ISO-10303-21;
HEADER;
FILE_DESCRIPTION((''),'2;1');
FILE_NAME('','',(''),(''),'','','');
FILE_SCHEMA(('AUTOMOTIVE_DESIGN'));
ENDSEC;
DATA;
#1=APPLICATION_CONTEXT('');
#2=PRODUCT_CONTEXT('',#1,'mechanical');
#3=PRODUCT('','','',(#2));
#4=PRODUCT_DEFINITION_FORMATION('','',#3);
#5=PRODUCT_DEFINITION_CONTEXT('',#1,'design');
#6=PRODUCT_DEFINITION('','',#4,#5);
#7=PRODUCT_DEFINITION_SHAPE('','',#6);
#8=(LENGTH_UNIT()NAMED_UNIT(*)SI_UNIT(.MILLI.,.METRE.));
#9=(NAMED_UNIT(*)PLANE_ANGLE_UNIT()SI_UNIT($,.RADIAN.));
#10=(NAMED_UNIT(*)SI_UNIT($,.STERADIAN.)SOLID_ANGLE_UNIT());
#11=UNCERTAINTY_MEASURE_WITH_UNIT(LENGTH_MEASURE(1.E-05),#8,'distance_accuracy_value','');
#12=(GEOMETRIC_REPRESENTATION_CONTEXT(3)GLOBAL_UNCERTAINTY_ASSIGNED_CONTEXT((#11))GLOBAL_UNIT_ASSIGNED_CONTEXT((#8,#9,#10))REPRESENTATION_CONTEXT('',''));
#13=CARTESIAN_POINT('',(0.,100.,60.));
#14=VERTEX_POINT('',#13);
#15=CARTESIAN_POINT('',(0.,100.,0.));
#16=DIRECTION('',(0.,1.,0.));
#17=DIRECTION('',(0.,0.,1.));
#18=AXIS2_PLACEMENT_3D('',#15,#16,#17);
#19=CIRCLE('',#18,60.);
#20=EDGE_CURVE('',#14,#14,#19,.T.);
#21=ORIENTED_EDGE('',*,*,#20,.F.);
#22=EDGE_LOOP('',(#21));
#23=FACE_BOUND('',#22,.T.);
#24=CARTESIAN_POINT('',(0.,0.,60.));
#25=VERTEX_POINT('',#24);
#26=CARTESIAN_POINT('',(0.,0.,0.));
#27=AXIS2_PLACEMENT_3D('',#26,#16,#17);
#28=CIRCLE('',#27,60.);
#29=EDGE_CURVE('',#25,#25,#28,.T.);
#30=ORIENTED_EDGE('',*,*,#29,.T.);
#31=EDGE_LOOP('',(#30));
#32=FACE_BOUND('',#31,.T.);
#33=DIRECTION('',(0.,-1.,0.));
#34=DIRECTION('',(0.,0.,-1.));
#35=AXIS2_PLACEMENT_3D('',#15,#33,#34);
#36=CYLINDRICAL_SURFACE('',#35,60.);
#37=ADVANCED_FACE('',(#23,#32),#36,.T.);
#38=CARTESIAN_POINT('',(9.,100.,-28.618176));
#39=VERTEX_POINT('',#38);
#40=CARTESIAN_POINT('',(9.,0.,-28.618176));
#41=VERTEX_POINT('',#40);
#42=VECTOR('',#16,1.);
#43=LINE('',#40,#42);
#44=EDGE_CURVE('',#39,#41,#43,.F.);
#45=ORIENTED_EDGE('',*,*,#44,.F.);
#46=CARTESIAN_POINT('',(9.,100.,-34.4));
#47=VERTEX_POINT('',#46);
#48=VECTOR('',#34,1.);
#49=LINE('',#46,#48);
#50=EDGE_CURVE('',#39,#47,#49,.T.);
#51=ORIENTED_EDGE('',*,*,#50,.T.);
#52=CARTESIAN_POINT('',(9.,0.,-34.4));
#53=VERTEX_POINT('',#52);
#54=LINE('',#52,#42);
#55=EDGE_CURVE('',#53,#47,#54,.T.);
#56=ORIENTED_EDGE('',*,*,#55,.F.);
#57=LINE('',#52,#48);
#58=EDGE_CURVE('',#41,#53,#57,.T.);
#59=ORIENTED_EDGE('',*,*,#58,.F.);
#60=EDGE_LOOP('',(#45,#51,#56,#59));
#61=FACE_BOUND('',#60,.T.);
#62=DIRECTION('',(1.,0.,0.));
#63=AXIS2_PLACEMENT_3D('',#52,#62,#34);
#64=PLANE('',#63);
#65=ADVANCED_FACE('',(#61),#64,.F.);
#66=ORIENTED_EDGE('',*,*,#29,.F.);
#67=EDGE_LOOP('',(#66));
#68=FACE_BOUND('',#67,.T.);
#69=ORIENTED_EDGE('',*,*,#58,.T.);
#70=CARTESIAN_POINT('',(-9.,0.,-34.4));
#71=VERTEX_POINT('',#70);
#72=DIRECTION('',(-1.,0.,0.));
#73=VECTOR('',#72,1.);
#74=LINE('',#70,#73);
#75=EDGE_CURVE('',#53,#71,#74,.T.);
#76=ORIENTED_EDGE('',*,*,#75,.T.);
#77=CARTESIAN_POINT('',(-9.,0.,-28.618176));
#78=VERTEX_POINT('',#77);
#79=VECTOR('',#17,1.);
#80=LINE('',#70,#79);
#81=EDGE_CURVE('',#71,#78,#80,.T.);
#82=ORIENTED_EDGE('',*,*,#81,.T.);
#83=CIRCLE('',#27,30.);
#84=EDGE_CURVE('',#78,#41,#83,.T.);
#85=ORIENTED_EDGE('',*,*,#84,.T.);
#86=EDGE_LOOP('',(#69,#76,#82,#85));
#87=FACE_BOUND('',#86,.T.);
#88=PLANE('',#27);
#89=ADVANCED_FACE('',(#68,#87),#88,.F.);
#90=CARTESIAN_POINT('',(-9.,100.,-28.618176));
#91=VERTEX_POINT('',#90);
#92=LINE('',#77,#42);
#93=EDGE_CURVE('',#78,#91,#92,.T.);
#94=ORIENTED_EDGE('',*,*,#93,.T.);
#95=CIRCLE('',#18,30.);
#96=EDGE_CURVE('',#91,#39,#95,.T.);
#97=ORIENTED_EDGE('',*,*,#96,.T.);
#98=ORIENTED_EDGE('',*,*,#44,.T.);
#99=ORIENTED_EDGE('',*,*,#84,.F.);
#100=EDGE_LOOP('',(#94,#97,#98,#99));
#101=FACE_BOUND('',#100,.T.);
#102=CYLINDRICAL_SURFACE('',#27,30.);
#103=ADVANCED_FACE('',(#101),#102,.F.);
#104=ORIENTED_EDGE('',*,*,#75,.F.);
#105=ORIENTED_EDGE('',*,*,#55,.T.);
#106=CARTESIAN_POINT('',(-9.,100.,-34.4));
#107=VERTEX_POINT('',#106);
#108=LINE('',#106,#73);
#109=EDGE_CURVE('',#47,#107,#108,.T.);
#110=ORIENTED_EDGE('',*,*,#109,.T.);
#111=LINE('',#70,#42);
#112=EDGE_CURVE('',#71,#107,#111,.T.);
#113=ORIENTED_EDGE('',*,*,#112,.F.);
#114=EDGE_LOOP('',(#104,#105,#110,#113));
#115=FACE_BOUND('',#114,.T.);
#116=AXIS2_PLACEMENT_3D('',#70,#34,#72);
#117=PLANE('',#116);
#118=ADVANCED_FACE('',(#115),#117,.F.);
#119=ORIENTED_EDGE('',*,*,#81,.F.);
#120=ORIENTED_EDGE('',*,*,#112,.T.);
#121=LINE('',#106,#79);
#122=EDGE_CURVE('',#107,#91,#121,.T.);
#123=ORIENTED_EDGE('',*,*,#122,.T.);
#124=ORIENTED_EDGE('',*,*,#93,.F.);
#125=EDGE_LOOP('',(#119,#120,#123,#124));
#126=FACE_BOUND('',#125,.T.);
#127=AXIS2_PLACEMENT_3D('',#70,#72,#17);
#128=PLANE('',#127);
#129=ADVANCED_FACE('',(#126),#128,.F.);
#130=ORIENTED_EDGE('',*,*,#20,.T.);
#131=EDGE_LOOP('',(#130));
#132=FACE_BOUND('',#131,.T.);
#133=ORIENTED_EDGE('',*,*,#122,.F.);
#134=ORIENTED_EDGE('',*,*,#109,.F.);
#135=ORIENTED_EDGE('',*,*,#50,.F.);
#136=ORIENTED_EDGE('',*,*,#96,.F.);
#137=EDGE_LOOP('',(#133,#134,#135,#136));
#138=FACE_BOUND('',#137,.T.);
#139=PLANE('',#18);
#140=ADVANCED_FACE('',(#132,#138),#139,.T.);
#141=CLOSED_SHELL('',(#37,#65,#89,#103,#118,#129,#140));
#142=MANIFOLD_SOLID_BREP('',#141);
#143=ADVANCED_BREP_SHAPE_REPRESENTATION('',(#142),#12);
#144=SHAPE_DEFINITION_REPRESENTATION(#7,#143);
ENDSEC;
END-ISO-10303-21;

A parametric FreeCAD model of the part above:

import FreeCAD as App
import Part
import Sketcher
from FreeCAD import Vector

doc = App.newDocument("Part")
body = doc.addObject("PartDesign::Body", "Body")

sketch1 = doc.addObject("Sketcher::SketchObject", "Sketch")
body.addObject(sketch1)
sketch1.AttachmentSupport = (doc.XZ_Plane, [""])
sketch1.MapMode = "FlatFace"
sketch1.addGeometry(Part.Circle(Vector(0, 0, 0), Vector(0, 0, 1), 60), False)
sketch1.addConstraint(Sketcher.Constraint("Coincident", 0, 3, -1, 1))
sketch1.addConstraint(Sketcher.Constraint("Diameter", 0, 120.0))
pad1 = doc.addObject("PartDesign::Pad", "Pad")
body.addObject(pad1)
pad1.Profile = sketch1
pad1.Length = 100
pad1.Reversed = True

sketch2 = doc.addObject("Sketcher::SketchObject", "Sketch001")
body.addObject(sketch2)
sketch2.AttachmentSupport = (doc.XZ_Plane, [""])
sketch2.MapMode = "FlatFace"
sketch2.AttachmentOffset = App.Placement(Vector(0, 0, -100), App.Rotation())
sketch2.addGeometry(Part.Circle(Vector(0, 0, 0), Vector(0, 0, 1), 30), False)
sketch2.addConstraint(Sketcher.Constraint("Coincident", 0, 3, -1, 1))
sketch2.addConstraint(Sketcher.Constraint("Diameter", 0, 60.0))
pocket1 = doc.addObject("PartDesign::Pocket", "Pocket")
body.addObject(pocket1)
pocket1.Profile = sketch2
pocket1.Type = "ThroughAll"
pocket1.Reversed = True

sketch3 = doc.addObject("Sketcher::SketchObject", "Sketch002")
body.addObject(sketch3)
sketch3.AttachmentSupport = (doc.XZ_Plane, [""])
sketch3.MapMode = "FlatFace"
sketch3.AttachmentOffset = App.Placement(Vector(0, 0, -100), App.Rotation())
sketch3.addGeometry(Part.LineSegment(Vector(-9, -34, 0), Vector(-9, -23, 0)), False)
sketch3.addGeometry(Part.LineSegment(Vector(-9, -23, 0), Vector(9, -23, 0)), False)
sketch3.addGeometry(Part.LineSegment(Vector(9, -23, 0), Vector(9, -34, 0)), False)
sketch3.addGeometry(Part.LineSegment(Vector(9, -34, 0), Vector(-9, -34, 0)), False)
sketch3.addConstraint(Sketcher.Constraint("Coincident", 0, 2, 1, 1))
sketch3.addConstraint(Sketcher.Constraint("Coincident", 1, 2, 2, 1))
sketch3.addConstraint(Sketcher.Constraint("Coincident", 2, 2, 3, 1))
sketch3.addConstraint(Sketcher.Constraint("Coincident", 3, 2, 0, 1))
sketch3.addConstraint(Sketcher.Constraint("Vertical", 0))
sketch3.addConstraint(Sketcher.Constraint("Horizontal", 1))
sketch3.addConstraint(Sketcher.Constraint("Vertical", 2))
sketch3.addConstraint(Sketcher.Constraint("Horizontal", 3))
sketch3.addConstraint(Sketcher.Constraint("DistanceX", 1, 1, 1, 2, 18.0))
sketch3.addConstraint(Sketcher.Constraint("DistanceY", 0, 1, 0, 2, 11.0))
sketch3.addConstraint(Sketcher.Constraint("DistanceX", 0, 2, -1, 1, 9.0))
sketch3.addConstraint(Sketcher.Constraint("DistanceY", 0, 2, -1, 1, 23.4))
pocket2 = doc.addObject("PartDesign::Pocket", "Pocket001")
body.addObject(pocket2)
pocket2.Profile = sketch3
pocket2.Type = "ThroughAll"
pocket2.Reversed = True

doc.recompute()
